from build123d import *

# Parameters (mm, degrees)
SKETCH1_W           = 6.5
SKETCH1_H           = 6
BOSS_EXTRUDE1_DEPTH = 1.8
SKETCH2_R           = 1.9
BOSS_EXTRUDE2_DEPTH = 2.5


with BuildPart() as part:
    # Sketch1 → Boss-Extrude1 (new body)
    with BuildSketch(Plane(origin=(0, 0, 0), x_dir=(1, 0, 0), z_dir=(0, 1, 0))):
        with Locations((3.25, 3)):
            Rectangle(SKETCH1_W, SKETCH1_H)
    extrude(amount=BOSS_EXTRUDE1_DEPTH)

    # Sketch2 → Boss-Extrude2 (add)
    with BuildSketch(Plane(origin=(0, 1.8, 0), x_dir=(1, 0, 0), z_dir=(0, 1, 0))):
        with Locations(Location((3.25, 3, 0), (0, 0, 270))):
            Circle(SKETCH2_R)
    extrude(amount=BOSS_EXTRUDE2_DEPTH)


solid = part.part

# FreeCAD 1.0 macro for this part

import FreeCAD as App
import Part
import Sketcher

doc = App.newDocument("Part")
body = doc.addObject("PartDesign::Body", "Body")

# Sketch on XZ plane
sketch1 = doc.addObject("Sketcher::SketchObject", "Sketch")
body.addObject(sketch1)
sketch1.AttachmentSupport = (doc.XZ_Plane, [""])
sketch1.MapMode = "FlatFace"
sketch1.addGeometry(Part.LineSegment(App.Vector(0, -6, 0), App.Vector(0, 0, 0)), False)
sketch1.addGeometry(Part.LineSegment(App.Vector(0, 0, 0), App.Vector(6.5, 0, 0)), False)
sketch1.addGeometry(Part.LineSegment(App.Vector(6.5, 0, 0), App.Vector(6.5, -6, 0)), False)
sketch1.addGeometry(Part.LineSegment(App.Vector(6.5, -6, 0), App.Vector(0, -6, 0)), False)
sketch1.addConstraint(Sketcher.Constraint("Coincident", 0, 2, 1, 1))
sketch1.addConstraint(Sketcher.Constraint("Coincident", 1, 2, 2, 1))
sketch1.addConstraint(Sketcher.Constraint("Coincident", 2, 2, 3, 1))
sketch1.addConstraint(Sketcher.Constraint("Coincident", 3, 2, 0, 1))
sketch1.addConstraint(Sketcher.Constraint("Vertical", 0))
sketch1.addConstraint(Sketcher.Constraint("Horizontal", 1))
sketch1.addConstraint(Sketcher.Constraint("Vertical", 2))
sketch1.addConstraint(Sketcher.Constraint("Horizontal", 3))
sketch1.addConstraint(Sketcher.Constraint("Coincident", 0, 2, -1, 1))
sketch1.addConstraint(Sketcher.Constraint("DistanceY", 0, 1, 0, 2, 6.0))
sketch1.addConstraint(Sketcher.Constraint("DistanceX", 1, 1, 1, 2, 6.5))
pad1 = doc.addObject("PartDesign::Pad", "Pad")
body.addObject(pad1)
pad1.Profile = sketch1
pad1.Length = 1.8
pad1.Reversed = True

# Sketch on XZ plane
sketch2 = doc.addObject("Sketcher::SketchObject", "Sketch001")
body.addObject(sketch2)
sketch2.AttachmentSupport = (doc.XZ_Plane, [""])
sketch2.MapMode = "FlatFace"
sketch2.AttachmentOffset = App.Placement(App.Vector(0, 0, -1.8), App.Rotation())
sketch2.addGeometry(Part.Circle(App.Vector(3.25, -3, 0), App.Vector(0, 0, 1), 1.9), False)
sketch2.addConstraint(Sketcher.Constraint("Diameter", 0, 3.8))
sketch2.addConstraint(Sketcher.Constraint("DistanceY", 0, 3, -1, 1, 3.0))
sketch2.addConstraint(Sketcher.Constraint("DistanceX", -1, 1, 0, 3, 3.25))
pad2 = doc.addObject("PartDesign::Pad", "Pad001")
body.addObject(pad2)
pad2.Profile = sketch2
pad2.Length = 2.5
pad2.Reversed = True

doc.recompute()
